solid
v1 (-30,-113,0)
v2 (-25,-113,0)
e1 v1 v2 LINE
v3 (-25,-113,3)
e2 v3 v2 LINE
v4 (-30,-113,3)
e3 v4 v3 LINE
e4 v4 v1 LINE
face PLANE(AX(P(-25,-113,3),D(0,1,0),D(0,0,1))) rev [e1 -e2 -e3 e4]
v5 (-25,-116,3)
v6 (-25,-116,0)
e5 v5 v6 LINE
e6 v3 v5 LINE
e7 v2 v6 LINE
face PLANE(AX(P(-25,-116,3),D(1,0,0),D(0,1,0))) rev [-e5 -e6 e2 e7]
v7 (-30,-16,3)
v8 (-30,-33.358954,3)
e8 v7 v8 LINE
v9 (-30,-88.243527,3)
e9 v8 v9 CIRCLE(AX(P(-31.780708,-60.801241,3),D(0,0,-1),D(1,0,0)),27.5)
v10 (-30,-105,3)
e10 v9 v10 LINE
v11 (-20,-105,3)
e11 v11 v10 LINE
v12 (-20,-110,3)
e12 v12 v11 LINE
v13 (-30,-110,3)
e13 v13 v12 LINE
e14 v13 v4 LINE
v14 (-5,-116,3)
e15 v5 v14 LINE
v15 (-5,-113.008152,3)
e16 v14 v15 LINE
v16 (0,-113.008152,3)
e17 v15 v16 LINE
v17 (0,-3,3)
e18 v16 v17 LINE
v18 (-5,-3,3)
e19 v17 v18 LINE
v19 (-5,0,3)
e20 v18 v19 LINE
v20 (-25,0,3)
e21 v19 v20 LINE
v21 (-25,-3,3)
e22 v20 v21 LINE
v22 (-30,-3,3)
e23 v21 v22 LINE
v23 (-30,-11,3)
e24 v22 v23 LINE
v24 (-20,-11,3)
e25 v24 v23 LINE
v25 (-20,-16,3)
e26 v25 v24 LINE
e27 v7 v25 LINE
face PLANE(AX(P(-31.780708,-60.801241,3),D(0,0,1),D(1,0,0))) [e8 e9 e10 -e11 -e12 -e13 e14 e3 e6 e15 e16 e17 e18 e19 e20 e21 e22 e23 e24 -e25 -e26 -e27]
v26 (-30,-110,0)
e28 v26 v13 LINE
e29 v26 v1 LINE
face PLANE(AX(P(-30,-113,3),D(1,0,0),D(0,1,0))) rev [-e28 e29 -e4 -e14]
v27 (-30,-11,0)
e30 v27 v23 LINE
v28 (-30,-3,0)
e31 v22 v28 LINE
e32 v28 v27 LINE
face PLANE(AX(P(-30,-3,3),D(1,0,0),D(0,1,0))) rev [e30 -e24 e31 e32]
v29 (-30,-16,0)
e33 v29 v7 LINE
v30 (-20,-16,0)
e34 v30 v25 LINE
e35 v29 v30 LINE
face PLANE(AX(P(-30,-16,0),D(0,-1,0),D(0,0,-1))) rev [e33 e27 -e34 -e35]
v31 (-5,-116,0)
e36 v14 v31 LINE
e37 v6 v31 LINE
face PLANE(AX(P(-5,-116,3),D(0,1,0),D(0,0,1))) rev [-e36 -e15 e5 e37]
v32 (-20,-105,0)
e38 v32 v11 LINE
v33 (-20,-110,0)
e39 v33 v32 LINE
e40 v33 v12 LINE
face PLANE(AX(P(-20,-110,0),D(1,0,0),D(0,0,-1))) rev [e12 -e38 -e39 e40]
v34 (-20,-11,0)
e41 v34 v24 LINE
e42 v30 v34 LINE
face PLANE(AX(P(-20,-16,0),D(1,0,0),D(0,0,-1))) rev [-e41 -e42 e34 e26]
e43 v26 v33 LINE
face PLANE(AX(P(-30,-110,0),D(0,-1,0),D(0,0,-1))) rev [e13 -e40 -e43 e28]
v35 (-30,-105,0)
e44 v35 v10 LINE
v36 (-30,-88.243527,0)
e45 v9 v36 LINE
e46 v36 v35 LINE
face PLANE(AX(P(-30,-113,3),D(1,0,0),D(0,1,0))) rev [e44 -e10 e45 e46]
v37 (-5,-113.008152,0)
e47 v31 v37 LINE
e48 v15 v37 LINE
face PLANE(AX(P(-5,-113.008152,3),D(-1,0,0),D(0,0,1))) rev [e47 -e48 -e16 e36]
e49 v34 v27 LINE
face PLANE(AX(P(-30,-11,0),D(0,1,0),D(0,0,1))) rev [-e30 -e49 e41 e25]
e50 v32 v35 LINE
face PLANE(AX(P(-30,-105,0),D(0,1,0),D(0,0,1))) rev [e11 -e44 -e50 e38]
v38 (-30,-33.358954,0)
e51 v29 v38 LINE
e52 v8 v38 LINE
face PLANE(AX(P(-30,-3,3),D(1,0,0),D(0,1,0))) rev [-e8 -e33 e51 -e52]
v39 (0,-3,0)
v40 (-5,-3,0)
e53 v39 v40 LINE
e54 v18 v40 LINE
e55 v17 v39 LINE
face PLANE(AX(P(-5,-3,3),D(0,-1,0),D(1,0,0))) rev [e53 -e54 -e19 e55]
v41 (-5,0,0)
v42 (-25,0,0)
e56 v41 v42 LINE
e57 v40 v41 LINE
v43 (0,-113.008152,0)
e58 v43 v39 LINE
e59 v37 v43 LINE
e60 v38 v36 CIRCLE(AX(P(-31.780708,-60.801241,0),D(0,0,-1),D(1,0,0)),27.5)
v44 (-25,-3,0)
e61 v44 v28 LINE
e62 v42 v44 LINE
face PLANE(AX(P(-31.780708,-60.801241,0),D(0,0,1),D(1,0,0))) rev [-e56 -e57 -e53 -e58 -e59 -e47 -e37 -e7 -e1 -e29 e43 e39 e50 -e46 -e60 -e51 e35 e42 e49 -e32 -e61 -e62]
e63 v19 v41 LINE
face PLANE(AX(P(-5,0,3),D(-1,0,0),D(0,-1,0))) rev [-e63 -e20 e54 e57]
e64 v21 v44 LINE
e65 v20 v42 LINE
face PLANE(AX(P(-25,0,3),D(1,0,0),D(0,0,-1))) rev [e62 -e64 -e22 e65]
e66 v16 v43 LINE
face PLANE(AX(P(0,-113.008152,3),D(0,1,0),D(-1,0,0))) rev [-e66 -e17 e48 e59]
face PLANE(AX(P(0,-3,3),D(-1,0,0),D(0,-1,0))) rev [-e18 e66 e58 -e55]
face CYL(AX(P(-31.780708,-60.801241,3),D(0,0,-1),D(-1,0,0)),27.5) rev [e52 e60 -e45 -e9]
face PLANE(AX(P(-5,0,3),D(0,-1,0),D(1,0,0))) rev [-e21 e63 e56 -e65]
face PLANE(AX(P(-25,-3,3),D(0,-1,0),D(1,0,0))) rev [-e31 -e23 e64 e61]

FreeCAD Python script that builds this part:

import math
import FreeCAD as App
import Part
import Sketcher

V = App.Vector


def add_polygon(sketch, points):
    """Adds a closed chain of lines whose ends are joined by coincident constraints."""
    first, n = sketch.GeometryCount, len(points)
    for a, b in zip(points, points[1:] + points[:1]):
        sketch.addGeometry(Part.LineSegment(App.Vector(*a, 0), App.Vector(*b, 0)), False)
    for i in range(n):
        sketch.addConstraint(Sketcher.Constraint("Coincident", first + i, 2, first + (i + 1) % n, 1))

doc = App.newDocument("Part")
body = doc.addObject("PartDesign::Body", "Body")

# Sketch on XY plane
sketch1 = body.newObject("Sketcher::SketchObject", "Sketch")
sketch1.AttachmentSupport = (doc.getObject("XY_Plane"), [""])
sketch1.MapMode = "FlatFace"
sketch1.addGeometry(Part.LineSegment(V(-5, -3, 0), V(-5, 0, 0)), False)
sketch1.addGeometry(Part.LineSegment(V(-5, 0, 0), V(-25, 0, 0)), False)
sketch1.addGeometry(Part.LineSegment(V(-25, 0, 0), V(-25, -3, 0)), False)
sketch1.addGeometry(Part.LineSegment(V(-25, -3, 0), V(-30, -3, 0)), False)
sketch1.addGeometry(Part.LineSegment(V(-30, -3, 0), V(-30, -33.4, 0)), False)
sketch1.addGeometry(Part.ArcOfCircle(Part.Circle(V(-31.8, -60.8, 0), V(0, 0, 1), 27.5), math.radians(-86), math.radians(86)), False)
sketch1.addGeometry(Part.LineSegment(V(-30, -88.2, 0), V(-30, -113, 0)), False)
sketch1.addGeometry(Part.LineSegment(V(-30, -113, 0), V(-25, -113, 0)), False)
sketch1.addGeometry(Part.LineSegment(V(-25, -113, 0), V(-25, -116, 0)), False)
sketch1.addGeometry(Part.LineSegment(V(-25, -116, 0), V(-5, -116, 0)), False)
sketch1.addGeometry(Part.LineSegment(V(-5, -116, 0), V(-5, -113, 0)), False)
sketch1.addGeometry(Part.LineSegment(V(-5, -113, 0), V(0, -113, 0)), False)
sketch1.addGeometry(Part.LineSegment(V(0, -113, 0), V(0, -3, 0)), False)
sketch1.addGeometry(Part.LineSegment(V(0, -3, 0), V(-5, -3, 0)), False)
sketch1.addConstraint(Sketcher.Constraint("Coincident", 0, 2, 1, 1))
sketch1.addConstraint(Sketcher.Constraint("Coincident", 1, 2, 2, 1))
sketch1.addConstraint(Sketcher.Constraint("Coincident", 2, 2, 3, 1))
sketch1.addConstraint(Sketcher.Constraint("Coincident", 3, 2, 4, 1))
sketch1.addConstraint(Sketcher.Constraint("Coincident", 4, 2, 5, 2))
sketch1.addConstraint(Sketcher.Constraint("Coincident", 5, 1, 6, 1))
sketch1.addConstraint(Sketcher.Constraint("Coincident", 6, 2, 7, 1))
sketch1.addConstraint(Sketcher.Constraint("Coincident", 7, 2, 8, 1))
sketch1.addConstraint(Sketcher.Constraint("Coincident", 8, 2, 9, 1))
sketch1.addConstraint(Sketcher.Constraint("Coincident", 9, 2, 10, 1))
sketch1.addConstraint(Sketcher.Constraint("Coincident", 10, 2, 11, 1))
sketch1.addConstraint(Sketcher.Constraint("Coincident", 11, 2, 12, 1))
sketch1.addConstraint(Sketcher.Constraint("Coincident", 12, 2, 13, 1))
sketch1.addConstraint(Sketcher.Constraint("Coincident", 13, 2, 0, 1))
sketch1.addConstraint(Sketcher.Constraint("Vertical", 0))
sketch1.addConstraint(Sketcher.Constraint("Horizontal", 1))
sketch1.addConstraint(Sketcher.Constraint("Vertical", 2))
sketch1.addConstraint(Sketcher.Constraint("Horizontal", 3))
sketch1.addConstraint(Sketcher.Constraint("Vertical", 4))
sketch1.addConstraint(Sketcher.Constraint("Vertical", 6))
sketch1.addConstraint(Sketcher.Constraint("Horizontal", 7))
sketch1.addConstraint(Sketcher.Constraint("Vertical", 8))
sketch1.addConstraint(Sketcher.Constraint("Horizontal", 9))
sketch1.addConstraint(Sketcher.Constraint("Vertical", 10))
sketch1.addConstraint(Sketcher.Constraint("Horizontal", 11))
sketch1.addConstraint(Sketcher.Constraint("Vertical", 12))
sketch1.addConstraint(Sketcher.Constraint("Horizontal", 13))
sketch1.addConstraint(Sketcher.Constraint("PointOnObject", 0, 2, -1))
sketch1.addConstraint(Sketcher.Constraint("PointOnObject", 11, 2, -2))
sketch1.addConstraint(Sketcher.Constraint("Horizontal", 3, 2, 12, 2))
sketch1.addConstraint(Sketcher.Constraint("Vertical", 4, 2, 5, 1))
sketch1.addConstraint(Sketcher.Constraint("Vertical", 2, 2, 7, 2))
sketch1.addConstraint(Sketcher.Constraint("Vertical", 0, 2, 9, 2))
sketch1.addConstraint(Sketcher.Constraint("Equal", 7, 11))
sketch1.addConstraint(Sketcher.Constraint("Equal", 2, 8))
sketch1.addConstraint(Sketcher.Constraint("Radius", 5, 27.5))
sketch1.addConstraint(Sketcher.Constraint("DistanceX", 1, 2, 1, 1, 20.0))
sketch1.addConstraint(Sketcher.Constraint("DistanceX", 3, 2, 3, 1, 5.0))
sketch1.addConstraint(Sketcher.Constraint("DistanceY", 0, 1, 0, 2, 3.0))
sketch1.addConstraint(Sketcher.Constraint("DistanceY", 6, 2, -1, 1, 113.0))
sketch1.addConstraint(Sketcher.Constraint("DistanceY", 4, 2, 4, 1, 30.358954))
sketch1.addConstraint(Sketcher.Constraint("DistanceY", 6, 2, 6, 1, 24.756473))
sketch1.addConstraint(Sketcher.Constraint("DistanceY", 10, 1, 10, 2, 2.991848))
pad1 = body.newObject("PartDesign::Pad", "Pad")
pad1.Profile = sketch1
pad1.Length = 3

# Sketch on XY plane
sketch2 = body.newObject("Sketcher::SketchObject", "Sketch001")
sketch2.AttachmentSupport = (doc.getObject("XY_Plane"), [""])
sketch2.MapMode = "FlatFace"
sketch2.AttachmentOffset = App.Placement(V(0, 0, 3), App.Rotation())
add_polygon(sketch2, [(-30, -105), (-30, -110), (-20, -110), (-20, -105)])  # lines 0-3
add_polygon(sketch2, [(-30, -11), (-30, -16), (-20, -16), (-20, -11)])  # lines 4-7
sketch2.addConstraint(Sketcher.Constraint("Vertical", 0))
sketch2.addConstraint(Sketcher.Constraint("Horizontal", 1))
sketch2.addConstraint(Sketcher.Constraint("Vertical", 2))
sketch2.addConstraint(Sketcher.Constraint("Horizontal", 3))
sketch2.addConstraint(Sketcher.Constraint("Vertical", 4))
sketch2.addConstraint(Sketcher.Constraint("Horizontal", 5))
sketch2.addConstraint(Sketcher.Constraint("Vertical", 6))
sketch2.addConstraint(Sketcher.Constraint("Horizontal", 7))
sketch2.addConstraint(Sketcher.Constraint("Vertical", 3, 2, 4, 2))
sketch2.addConstraint(Sketcher.Constraint("Vertical", 2, 2, 5, 2))
sketch2.addConstraint(Sketcher.Constraint("Equal", 2, 4))
sketch2.addConstraint(Sketcher.Constraint("DistanceX", 1, 1, 1, 2, 10.0))
sketch2.addConstraint(Sketcher.Constraint("DistanceY", 0, 2, 0, 1, 5.0))
sketch2.addConstraint(Sketcher.Constraint("DistanceX", 0, 2, -1, 1, 30.0))
sketch2.addConstraint(Sketcher.Constraint("DistanceY", 0, 2, -1, 1, 110.0))
sketch2.addConstraint(Sketcher.Constraint("DistanceY", 4, 2, -1, 1, 16.0))
pocket1 = body.newObject("PartDesign::Pocket", "Pocket")
pocket1.Profile = sketch2
pocket1.Length = 3

doc.recompute()
